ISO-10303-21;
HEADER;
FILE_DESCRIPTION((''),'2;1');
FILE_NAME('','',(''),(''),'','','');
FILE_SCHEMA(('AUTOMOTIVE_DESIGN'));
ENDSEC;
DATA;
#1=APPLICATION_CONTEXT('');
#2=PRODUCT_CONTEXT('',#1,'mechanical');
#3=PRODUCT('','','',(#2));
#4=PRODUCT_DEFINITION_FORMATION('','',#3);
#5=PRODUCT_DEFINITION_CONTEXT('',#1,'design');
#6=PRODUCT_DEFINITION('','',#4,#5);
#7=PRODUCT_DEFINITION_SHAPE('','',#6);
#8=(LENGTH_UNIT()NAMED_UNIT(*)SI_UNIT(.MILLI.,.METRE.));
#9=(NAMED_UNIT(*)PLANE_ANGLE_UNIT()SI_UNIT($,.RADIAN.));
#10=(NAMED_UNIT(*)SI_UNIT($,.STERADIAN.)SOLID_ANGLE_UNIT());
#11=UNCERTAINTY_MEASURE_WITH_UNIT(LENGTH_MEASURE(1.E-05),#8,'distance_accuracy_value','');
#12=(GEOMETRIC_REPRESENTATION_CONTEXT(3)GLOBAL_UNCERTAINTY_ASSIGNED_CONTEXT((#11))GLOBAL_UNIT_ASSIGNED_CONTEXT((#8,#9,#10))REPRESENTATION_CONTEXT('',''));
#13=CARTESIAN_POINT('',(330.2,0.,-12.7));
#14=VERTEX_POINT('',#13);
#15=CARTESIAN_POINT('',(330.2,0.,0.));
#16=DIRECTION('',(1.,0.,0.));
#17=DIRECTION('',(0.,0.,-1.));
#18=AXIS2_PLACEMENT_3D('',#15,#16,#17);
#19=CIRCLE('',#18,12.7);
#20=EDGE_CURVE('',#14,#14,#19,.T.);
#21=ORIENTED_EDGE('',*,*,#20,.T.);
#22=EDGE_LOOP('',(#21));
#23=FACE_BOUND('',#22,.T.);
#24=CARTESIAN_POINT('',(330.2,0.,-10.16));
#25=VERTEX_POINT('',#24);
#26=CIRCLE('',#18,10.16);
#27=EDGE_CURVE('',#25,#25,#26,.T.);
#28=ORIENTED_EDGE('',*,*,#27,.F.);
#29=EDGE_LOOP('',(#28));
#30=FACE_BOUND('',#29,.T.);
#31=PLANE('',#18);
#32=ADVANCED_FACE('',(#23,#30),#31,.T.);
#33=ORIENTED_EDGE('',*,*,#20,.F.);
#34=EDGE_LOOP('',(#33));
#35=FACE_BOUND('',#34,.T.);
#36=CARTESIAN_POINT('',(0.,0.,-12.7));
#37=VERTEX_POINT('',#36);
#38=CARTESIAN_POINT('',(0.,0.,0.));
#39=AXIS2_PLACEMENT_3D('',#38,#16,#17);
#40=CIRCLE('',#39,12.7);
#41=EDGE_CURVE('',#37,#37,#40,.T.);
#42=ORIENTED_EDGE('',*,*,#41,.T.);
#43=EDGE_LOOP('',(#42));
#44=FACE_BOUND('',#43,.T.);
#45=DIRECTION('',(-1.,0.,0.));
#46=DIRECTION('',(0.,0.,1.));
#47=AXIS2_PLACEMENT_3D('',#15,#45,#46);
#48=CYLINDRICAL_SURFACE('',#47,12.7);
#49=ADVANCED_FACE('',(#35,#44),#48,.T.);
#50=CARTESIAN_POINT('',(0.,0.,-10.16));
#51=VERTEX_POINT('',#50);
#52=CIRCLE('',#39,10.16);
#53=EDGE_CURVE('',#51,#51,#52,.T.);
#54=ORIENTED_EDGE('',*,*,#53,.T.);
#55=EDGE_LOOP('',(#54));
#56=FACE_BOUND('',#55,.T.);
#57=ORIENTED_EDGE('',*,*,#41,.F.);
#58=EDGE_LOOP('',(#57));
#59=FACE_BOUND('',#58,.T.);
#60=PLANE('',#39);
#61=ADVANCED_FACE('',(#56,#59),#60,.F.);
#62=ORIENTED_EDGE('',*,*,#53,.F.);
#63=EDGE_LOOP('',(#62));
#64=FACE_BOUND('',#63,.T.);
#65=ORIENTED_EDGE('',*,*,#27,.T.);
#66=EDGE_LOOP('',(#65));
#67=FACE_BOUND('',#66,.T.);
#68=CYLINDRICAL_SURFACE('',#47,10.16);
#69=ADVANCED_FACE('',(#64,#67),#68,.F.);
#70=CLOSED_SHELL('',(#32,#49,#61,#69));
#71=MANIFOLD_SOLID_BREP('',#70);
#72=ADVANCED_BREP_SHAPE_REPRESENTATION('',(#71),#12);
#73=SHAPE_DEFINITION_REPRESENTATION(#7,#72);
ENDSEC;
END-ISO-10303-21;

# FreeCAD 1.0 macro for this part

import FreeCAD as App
import Part
import Sketcher

V = App.Vector
Q = App.Units.Quantity

doc = App.newDocument("Part")
body = doc.addObject("PartDesign::Body", "Body")

sketch1 = doc.addObject("Sketcher::SketchObject", "Sketch")
body.addObject(sketch1)
sketch1.AttachmentSupport = (doc.YZ_Plane, [""])
sketch1.MapMode = "FlatFace"
sketch1.addGeometry(Part.Circle(V(0, 0, 0), V(0, 0, 1), 12.7), False)
sketch1.addGeometry(Part.Circle(V(0, 0, 0), V(0, 0, 1), 10.16), False)
sketch1.addConstraint(Sketcher.Constraint("Coincident", 0, 3, -1, 1))
sketch1.addConstraint(Sketcher.Constraint("Coincident", 1, 3, -1, 1))
sketch1.addConstraint(Sketcher.Constraint("Diameter", 0, Q("1 in")))
sketch1.addConstraint(Sketcher.Constraint("Diameter", 1, Q("0.8 in")))
pad1 = doc.addObject("PartDesign::Pad", "Pad")
body.addObject(pad1)
pad1.Profile = sketch1
pad1.Length = Q("13 in")

doc.recompute()
